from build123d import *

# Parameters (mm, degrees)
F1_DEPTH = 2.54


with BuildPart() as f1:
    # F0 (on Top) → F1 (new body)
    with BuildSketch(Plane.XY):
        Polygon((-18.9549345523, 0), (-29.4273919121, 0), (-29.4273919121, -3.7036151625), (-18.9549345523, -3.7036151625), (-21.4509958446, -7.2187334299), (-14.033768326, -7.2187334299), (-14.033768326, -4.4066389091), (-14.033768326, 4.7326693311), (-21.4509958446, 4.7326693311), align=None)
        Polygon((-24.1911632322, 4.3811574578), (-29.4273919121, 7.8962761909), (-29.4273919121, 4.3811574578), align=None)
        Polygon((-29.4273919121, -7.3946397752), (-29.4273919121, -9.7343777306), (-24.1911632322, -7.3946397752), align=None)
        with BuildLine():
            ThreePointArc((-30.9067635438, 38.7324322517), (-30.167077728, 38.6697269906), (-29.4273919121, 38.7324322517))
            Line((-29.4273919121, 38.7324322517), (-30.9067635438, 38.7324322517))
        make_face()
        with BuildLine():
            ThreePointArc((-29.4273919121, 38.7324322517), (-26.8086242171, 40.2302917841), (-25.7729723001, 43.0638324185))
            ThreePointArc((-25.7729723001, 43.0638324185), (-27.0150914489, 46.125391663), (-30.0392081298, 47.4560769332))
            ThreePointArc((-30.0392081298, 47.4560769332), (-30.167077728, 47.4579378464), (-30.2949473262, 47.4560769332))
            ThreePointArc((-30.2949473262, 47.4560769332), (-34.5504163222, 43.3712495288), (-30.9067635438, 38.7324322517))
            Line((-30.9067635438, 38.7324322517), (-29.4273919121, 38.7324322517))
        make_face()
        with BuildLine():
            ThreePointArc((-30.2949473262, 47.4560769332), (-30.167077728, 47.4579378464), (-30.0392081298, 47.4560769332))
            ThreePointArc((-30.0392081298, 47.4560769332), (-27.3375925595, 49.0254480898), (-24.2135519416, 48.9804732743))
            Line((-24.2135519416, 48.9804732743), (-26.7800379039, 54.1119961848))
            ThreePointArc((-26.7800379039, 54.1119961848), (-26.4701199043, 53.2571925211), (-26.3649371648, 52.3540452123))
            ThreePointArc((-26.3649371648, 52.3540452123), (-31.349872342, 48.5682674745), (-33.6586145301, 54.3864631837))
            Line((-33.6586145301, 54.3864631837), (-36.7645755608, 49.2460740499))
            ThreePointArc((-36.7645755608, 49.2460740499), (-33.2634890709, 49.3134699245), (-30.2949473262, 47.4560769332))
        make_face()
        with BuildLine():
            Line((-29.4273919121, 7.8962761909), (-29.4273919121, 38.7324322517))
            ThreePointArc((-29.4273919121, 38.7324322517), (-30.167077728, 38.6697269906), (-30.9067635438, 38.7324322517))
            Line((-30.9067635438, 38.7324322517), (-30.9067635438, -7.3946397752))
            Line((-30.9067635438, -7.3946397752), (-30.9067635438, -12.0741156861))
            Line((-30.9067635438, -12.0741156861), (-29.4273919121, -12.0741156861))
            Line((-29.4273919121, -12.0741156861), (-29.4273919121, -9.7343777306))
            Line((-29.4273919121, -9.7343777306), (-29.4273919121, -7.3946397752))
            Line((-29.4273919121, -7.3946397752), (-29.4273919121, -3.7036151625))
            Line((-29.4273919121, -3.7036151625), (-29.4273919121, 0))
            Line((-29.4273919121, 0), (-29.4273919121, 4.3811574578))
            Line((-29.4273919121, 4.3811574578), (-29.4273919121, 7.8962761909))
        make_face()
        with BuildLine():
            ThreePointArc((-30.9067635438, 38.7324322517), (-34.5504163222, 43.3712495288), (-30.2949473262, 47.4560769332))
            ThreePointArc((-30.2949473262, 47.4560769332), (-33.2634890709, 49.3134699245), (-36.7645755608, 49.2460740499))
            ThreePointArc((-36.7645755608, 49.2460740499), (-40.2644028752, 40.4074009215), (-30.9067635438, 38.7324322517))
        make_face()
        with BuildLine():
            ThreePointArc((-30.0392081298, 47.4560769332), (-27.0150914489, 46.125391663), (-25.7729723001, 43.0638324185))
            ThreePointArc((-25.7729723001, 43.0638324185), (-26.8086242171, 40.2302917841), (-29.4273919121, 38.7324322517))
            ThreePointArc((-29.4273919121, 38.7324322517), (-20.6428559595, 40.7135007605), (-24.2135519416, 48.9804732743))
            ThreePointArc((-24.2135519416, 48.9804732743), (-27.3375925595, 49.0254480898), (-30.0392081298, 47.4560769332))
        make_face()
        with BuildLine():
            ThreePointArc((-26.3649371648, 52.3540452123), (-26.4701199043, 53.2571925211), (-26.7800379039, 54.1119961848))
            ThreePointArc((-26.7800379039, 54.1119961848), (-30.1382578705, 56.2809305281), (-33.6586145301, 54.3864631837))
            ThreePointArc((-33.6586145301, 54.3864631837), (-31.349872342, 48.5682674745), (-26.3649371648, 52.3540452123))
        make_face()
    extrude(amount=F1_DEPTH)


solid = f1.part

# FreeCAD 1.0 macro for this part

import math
import FreeCAD as App
import Part
import Sketcher
from FreeCAD import Vector
Q = App.Units.Quantity

doc = App.newDocument("Part")
body = doc.addObject("PartDesign::Body", "Body")

# Sketch on XY plane
sketch1 = body.newObject("Sketcher::SketchObject", "Sketch")
sketch1.AttachmentSupport = (doc.getObject("XY_Plane"), [""])
sketch1.MapMode = "FlatFace"
sketch1.addGeometry(Part.LineSegment(Vector(-18.954935, 0, 0), Vector(-29.427392, 0, 0)), False)
sketch1.addGeometry(Part.LineSegment(Vector(-29.427392, 0, 0), Vector(-29.427392, 4.381157, 0)), False)
sketch1.addGeometry(Part.LineSegment(Vector(-29.427392, 4.381157, 0), Vector(-24.191163, 4.381157, 0)), False)
sketch1.addGeometry(Part.LineSegment(Vector(-24.191163, 4.381157, 0), Vector(-29.427392, 7.896276, 0)), False)
sketch1.addGeometry(Part.LineSegment(Vector(-29.427392, 7.896276, 0), Vector(-29.427392, 38.732432, 0)), False)
sketch1.addGeometry(Part.ArcOfCircle(Part.Circle(Vector(-25.856722, 43.366131, 0), Vector(0, 0, 1), 5.849859), math.radians(-127.617393), math.radians(73.686636)), False)
sketch1.addGeometry(Part.LineSegment(Vector(-24.213552, 48.980473, 0), Vector(-26.780038, 54.111996, 0)), False)
sketch1.addGeometry(Part.ArcOfCircle(Part.Circle(Vector(-30.294947, 52.354045, 0), Vector(0, 0, 1), 3.93001), math.radians(26.571522), math.radians(148.858502)), False)
sketch1.addGeometry(Part.LineSegment(Vector(-33.658615, 54.386463, 0), Vector(-36.764576, 49.246074, 0)), False)
sketch1.addGeometry(Part.ArcOfCircle(Part.Circle(Vector(-34.900766, 43.395821, 0), Vector(0, 0, 1), 6.139971), math.radians(107.671154), math.radians(310.578712)), False)
sketch1.addGeometry(Part.LineSegment(Vector(-30.906764, 38.732432, 0), Vector(-30.906764, -12.074116, 0)), False)
sketch1.addGeometry(Part.LineSegment(Vector(-30.906764, -12.074116, 0), Vector(-29.427392, -12.074116, 0)), False)
sketch1.addGeometry(Part.LineSegment(Vector(-29.427392, -12.074116, 0), Vector(-29.427392, -9.734378, 0)), False)
sketch1.addGeometry(Part.LineSegment(Vector(-29.427392, -9.734378, 0), Vector(-24.191163, -7.39464, 0)), False)
sketch1.addGeometry(Part.LineSegment(Vector(-24.191163, -7.39464, 0), Vector(-29.427392, -7.39464, 0)), False)
sketch1.addGeometry(Part.LineSegment(Vector(-29.427392, -7.39464, 0), Vector(-29.427392, -3.703615, 0)), False)
sketch1.addGeometry(Part.LineSegment(Vector(-29.427392, -3.703615, 0), Vector(-18.954935, -3.703615, 0)), False)
sketch1.addGeometry(Part.LineSegment(Vector(-18.954935, -3.703615, 0), Vector(-21.450996, -7.218733, 0)), False)
sketch1.addGeometry(Part.LineSegment(Vector(-21.450996, -7.218733, 0), Vector(-14.033768, -7.218733, 0)), False)
sketch1.addGeometry(Part.LineSegment(Vector(-14.033768, -7.218733, 0), Vector(-14.033768, 4.732669, 0)), False)
sketch1.addGeometry(Part.LineSegment(Vector(-14.033768, 4.732669, 0), Vector(-21.450996, 4.732669, 0)), False)
sketch1.addGeometry(Part.LineSegment(Vector(-21.450996, 4.732669, 0), Vector(-18.954935, 0, 0)), False)
sketch1.addConstraint(Sketcher.Constraint("Coincident", 0, 2, 1, 1))
sketch1.addConstraint(Sketcher.Constraint("Coincident", 1, 2, 2, 1))
sketch1.addConstraint(Sketcher.Constraint("Coincident", 2, 2, 3, 1))
sketch1.addConstraint(Sketcher.Constraint("Coincident", 3, 2, 4, 1))
sketch1.addConstraint(Sketcher.Constraint("Coincident", 4, 2, 5, 1))
sketch1.addConstraint(Sketcher.Constraint("Coincident", 5, 2, 6, 1))
sketch1.addConstraint(Sketcher.Constraint("Tangent", 6, 2, 7, 1))
sketch1.addConstraint(Sketcher.Constraint("Tangent", 7, 2, 8, 1))
sketch1.addConstraint(Sketcher.Constraint("Coincident", 8, 2, 9, 1))
sketch1.addConstraint(Sketcher.Constraint("Coincident", 9, 2, 10, 1))
sketch1.addConstraint(Sketcher.Constraint("Coincident", 10, 2, 11, 1))
sketch1.addConstraint(Sketcher.Constraint("Coincident", 11, 2, 12, 1))
sketch1.addConstraint(Sketcher.Constraint("Coincident", 12, 2, 13, 1))
sketch1.addConstraint(Sketcher.Constraint("Coincident", 13, 2, 14, 1))
sketch1.addConstraint(Sketcher.Constraint("Coincident", 14, 2, 15, 1))
sketch1.addConstraint(Sketcher.Constraint("Coincident", 15, 2, 16, 1))
sketch1.addConstraint(Sketcher.Constraint("Coincident", 16, 2, 17, 1))
sketch1.addConstraint(Sketcher.Constraint("Coincident", 17, 2, 18, 1))
sketch1.addConstraint(Sketcher.Constraint("Coincident", 18, 2, 19, 1))
sketch1.addConstraint(Sketcher.Constraint("Coincident", 19, 2, 20, 1))
sketch1.addConstraint(Sketcher.Constraint("Coincident", 20, 2, 21, 1))
sketch1.addConstraint(Sketcher.Constraint("Coincident", 21, 2, 0, 1))
sketch1.addConstraint(Sketcher.Constraint("Horizontal", 0))
sketch1.addConstraint(Sketcher.Constraint("Vertical", 1))
sketch1.addConstraint(Sketcher.Constraint("Horizontal", 2))
sketch1.addConstraint(Sketcher.Constraint("Vertical", 4))
sketch1.addConstraint(Sketcher.Constraint("Vertical", 10))
sketch1.addConstraint(Sketcher.Constraint("Horizontal", 11))
sketch1.addConstraint(Sketcher.Constraint("Vertical", 12))
sketch1.addConstraint(Sketcher.Constraint("Horizontal", 14))
sketch1.addConstraint(Sketcher.Constraint("Vertical", 15))
sketch1.addConstraint(Sketcher.Constraint("Horizontal", 16))
sketch1.addConstraint(Sketcher.Constraint("Horizontal", 18))
sketch1.addConstraint(Sketcher.Constraint("Vertical", 19))
sketch1.addConstraint(Sketcher.Constraint("Horizontal", 20))
sketch1.addConstraint(Sketcher.Constraint("PointOnObject", 0, 2, -1))
sketch1.addConstraint(Sketcher.Constraint("Horizontal", 4, 2, 9, 2))
sketch1.addConstraint(Sketcher.Constraint("Vertical", 1, 2, 3, 2))
sketch1.addConstraint(Sketcher.Constraint("Vertical", 4, 2, 11, 2))
sketch1.addConstraint(Sketcher.Constraint("Vertical", 2, 2, 13, 2))
sketch1.addConstraint(Sketcher.Constraint("Vertical", 12, 2, 14, 2))
sketch1.addConstraint(Sketcher.Constraint("Vertical", 17, 2, 20, 2))
sketch1.addConstraint(Sketcher.Constraint("Vertical", 16, 2, 21, 2))
sketch1.addConstraint(Sketcher.Constraint("Radius", 5, Q("5.849859 mm")))
sketch1.addConstraint(Sketcher.Constraint("Radius", 7, Q("3.93001 mm")))
sketch1.addConstraint(Sketcher.Constraint("Radius", 9, Q("6.139971 mm")))
sketch1.addConstraint(Sketcher.Constraint("DistanceX", 2, 1, 2, 2, Q("5.236229 mm")))
sketch1.addConstraint(Sketcher.Constraint("DistanceX", 11, 1, 11, 2, Q("1.479372 mm")))
sketch1.addConstraint(Sketcher.Constraint("DistanceY", 4, 2, 5, 3, Q("4.633699 mm")))
sketch1.addConstraint(Sketcher.Constraint("Distance", 6, Q("5.737541 mm")))
sketch1.addConstraint(Sketcher.Constraint("Distance", 8, Q("6.00588 mm")))
sketch1.addConstraint(Sketcher.Constraint("Distance", 21, Q("5.350559 mm")))
sketch1.addConstraint(Sketcher.Constraint("DistanceX", 0, 2, 0, 1, Q("10.472457 mm")))
sketch1.addConstraint(Sketcher.Constraint("DistanceX", 18, 1, 18, 2, Q("7.417228 mm")))
sketch1.addConstraint(Sketcher.Constraint("DistanceY", 1, 1, 1, 2, Q("4.381157 mm")))
sketch1.addConstraint(Sketcher.Constraint("DistanceY", 4, 1, 4, 2, Q("30.836156 mm")))
sketch1.addConstraint(Sketcher.Constraint("DistanceY", 10, 2, 10, 1, Q("50.806548 mm")))
sketch1.addConstraint(Sketcher.Constraint("DistanceY", 12, 1, 12, 2, Q("2.339738 mm")))
sketch1.addConstraint(Sketcher.Constraint("DistanceY", 15, 1, 15, 2, Q("3.691025 mm")))
sketch1.addConstraint(Sketcher.Constraint("DistanceY", 19, 1, 19, 2, Q("11.951403 mm")))
sketch1.addConstraint(Sketcher.Constraint("DistanceY", -1, 1, 5, 3, Q("43.366131 mm")))
sketch1.addConstraint(Sketcher.Constraint("DistanceY", -1, 1, 9, 3, Q("43.395821 mm")))
sketch1.addConstraint(Sketcher.Constraint("DistanceX", 0, 2, -1, 1, Q("29.427392 mm")))
sketch1.addConstraint(Sketcher.Constraint("DistanceX", 5, 2, -1, 1, Q("24.213552 mm")))
sketch1.addConstraint(Sketcher.Constraint("DistanceY", 13, 2, -1, 1, Q("7.39464 mm")))
sketch1.addConstraint(Sketcher.Constraint("DistanceX", 18, 2, -1, 1, Q("14.033768 mm")))
sketch1.addConstraint(Sketcher.Constraint("DistanceX", 9, 3, 7, 3, Q("4.605819 mm")))
pad1 = body.newObject("PartDesign::Pad", "Pad")
pad1.Profile = sketch1
pad1.Length = Q("0.1 in")

doc.recompute()
